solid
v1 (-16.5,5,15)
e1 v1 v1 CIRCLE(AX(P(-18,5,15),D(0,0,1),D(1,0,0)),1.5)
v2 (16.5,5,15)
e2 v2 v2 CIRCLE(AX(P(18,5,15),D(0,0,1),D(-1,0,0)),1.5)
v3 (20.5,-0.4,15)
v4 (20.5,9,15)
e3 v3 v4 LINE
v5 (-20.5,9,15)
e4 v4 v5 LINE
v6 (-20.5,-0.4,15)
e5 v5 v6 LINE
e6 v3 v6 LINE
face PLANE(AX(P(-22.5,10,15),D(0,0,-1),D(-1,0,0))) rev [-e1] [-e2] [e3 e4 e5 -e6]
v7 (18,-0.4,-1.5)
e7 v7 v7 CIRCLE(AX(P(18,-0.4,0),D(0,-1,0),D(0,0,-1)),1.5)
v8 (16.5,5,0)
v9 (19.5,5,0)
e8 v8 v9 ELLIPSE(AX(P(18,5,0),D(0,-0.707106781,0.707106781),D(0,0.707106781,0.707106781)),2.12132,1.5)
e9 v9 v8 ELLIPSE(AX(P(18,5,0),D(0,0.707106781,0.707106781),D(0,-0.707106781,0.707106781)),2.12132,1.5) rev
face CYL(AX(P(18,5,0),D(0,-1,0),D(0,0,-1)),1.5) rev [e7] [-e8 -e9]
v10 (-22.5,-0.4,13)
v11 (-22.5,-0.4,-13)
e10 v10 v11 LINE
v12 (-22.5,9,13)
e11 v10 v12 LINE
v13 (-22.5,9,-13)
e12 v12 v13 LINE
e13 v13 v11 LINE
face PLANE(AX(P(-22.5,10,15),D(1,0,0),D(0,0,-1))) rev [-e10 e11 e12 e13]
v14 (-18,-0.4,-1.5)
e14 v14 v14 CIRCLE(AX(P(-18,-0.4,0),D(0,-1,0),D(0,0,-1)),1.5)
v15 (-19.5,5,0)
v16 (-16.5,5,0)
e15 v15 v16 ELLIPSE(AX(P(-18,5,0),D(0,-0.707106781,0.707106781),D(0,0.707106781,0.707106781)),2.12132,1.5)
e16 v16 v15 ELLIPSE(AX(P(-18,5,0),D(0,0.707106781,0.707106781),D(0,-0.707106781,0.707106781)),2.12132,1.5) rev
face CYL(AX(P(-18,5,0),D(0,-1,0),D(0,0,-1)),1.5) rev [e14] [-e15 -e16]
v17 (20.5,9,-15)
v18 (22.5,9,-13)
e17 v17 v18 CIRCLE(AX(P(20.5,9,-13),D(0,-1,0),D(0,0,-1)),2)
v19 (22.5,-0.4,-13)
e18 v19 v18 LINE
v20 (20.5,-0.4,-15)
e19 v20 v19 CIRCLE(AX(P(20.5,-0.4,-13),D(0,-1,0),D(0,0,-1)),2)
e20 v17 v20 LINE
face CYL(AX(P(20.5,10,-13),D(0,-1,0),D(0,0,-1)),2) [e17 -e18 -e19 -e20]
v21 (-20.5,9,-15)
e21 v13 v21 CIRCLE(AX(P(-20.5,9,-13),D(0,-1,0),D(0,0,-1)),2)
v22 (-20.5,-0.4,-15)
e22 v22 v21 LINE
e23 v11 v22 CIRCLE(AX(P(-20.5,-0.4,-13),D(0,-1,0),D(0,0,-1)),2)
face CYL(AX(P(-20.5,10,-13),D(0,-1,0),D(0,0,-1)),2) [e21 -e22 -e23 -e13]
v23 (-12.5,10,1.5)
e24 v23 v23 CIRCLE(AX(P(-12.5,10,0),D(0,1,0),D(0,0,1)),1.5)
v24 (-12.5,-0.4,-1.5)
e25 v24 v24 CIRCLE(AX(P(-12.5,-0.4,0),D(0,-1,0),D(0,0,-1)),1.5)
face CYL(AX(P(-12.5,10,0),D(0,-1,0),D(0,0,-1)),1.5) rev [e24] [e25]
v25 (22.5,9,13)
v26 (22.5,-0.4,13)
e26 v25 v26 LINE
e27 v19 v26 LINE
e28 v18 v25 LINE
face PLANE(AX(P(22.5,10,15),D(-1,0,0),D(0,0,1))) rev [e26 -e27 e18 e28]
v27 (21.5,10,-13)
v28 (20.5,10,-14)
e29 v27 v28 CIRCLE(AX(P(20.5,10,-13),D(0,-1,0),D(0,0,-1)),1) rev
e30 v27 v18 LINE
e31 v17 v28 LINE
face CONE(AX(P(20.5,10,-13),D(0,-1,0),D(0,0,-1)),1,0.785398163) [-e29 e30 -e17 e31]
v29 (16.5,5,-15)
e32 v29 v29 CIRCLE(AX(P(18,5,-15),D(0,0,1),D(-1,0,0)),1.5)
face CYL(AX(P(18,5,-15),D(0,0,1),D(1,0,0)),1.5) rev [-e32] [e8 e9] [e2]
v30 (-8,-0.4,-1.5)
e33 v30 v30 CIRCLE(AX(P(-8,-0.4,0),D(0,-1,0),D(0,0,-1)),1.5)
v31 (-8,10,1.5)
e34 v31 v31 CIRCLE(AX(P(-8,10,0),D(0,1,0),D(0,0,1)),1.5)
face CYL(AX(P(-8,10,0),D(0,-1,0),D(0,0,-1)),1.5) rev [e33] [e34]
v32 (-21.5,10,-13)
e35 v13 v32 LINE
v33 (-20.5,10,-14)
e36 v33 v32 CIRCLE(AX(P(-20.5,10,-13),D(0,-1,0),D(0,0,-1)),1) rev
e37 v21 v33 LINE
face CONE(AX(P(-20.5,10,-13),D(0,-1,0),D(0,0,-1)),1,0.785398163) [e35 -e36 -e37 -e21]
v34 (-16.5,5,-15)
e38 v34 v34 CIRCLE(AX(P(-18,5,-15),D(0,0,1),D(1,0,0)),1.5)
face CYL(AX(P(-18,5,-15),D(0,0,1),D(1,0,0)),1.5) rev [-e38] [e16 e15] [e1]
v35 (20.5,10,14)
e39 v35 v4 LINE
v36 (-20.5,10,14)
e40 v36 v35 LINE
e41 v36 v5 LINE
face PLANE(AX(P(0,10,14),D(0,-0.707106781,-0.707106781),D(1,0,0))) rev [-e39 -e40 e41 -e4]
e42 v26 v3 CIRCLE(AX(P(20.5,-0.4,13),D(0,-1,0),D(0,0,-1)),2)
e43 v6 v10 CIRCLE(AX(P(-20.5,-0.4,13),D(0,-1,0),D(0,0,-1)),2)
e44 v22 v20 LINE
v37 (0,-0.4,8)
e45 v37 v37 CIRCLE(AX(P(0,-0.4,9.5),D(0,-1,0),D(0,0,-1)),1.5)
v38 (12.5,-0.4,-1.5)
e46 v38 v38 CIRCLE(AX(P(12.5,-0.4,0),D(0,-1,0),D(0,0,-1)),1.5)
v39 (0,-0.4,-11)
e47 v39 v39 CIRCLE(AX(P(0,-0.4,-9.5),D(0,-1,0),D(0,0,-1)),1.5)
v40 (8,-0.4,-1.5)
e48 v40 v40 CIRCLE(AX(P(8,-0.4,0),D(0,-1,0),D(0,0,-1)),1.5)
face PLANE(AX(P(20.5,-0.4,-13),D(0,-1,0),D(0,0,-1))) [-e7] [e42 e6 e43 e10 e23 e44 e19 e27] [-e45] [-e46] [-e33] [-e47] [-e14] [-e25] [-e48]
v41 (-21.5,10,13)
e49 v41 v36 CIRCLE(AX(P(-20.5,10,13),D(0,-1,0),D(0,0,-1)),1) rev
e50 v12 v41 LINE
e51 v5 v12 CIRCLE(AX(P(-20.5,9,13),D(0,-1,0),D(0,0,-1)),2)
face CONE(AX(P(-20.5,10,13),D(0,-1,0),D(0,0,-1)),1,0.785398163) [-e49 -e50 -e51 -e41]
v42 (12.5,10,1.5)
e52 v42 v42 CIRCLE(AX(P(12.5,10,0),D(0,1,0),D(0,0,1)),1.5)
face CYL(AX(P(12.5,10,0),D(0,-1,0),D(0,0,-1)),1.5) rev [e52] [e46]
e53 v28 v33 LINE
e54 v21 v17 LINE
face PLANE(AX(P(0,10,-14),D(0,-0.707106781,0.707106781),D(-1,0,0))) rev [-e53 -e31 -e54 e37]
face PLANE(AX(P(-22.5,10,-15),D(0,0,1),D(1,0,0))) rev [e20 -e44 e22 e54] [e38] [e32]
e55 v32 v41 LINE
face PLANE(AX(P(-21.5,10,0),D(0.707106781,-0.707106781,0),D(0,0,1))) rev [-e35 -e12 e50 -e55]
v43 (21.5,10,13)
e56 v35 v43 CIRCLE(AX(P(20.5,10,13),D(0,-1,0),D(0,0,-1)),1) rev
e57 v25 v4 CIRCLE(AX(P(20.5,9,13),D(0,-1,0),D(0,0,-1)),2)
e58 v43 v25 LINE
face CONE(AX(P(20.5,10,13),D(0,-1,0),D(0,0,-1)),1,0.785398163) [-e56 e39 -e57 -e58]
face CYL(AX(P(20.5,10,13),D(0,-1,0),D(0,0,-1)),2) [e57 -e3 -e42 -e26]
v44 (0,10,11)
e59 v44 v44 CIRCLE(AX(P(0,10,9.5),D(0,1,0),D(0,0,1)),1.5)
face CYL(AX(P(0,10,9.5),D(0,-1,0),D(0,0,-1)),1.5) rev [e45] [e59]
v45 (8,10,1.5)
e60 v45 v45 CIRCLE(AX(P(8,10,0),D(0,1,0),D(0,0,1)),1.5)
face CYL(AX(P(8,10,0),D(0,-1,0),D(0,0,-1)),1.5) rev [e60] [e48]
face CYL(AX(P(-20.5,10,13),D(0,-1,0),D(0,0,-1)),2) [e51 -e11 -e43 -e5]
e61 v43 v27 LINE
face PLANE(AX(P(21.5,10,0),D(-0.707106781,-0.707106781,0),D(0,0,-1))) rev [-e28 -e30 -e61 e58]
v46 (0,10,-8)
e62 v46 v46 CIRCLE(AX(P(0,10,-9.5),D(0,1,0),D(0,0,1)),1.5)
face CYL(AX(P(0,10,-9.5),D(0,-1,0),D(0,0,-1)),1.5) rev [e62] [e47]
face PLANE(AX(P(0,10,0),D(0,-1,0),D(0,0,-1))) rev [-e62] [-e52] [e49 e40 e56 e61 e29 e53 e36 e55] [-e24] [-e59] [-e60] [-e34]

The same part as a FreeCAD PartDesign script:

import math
import FreeCAD as App
import Part
import Sketcher
from FreeCAD import Vector
Q = App.Units.Quantity


def edges_at(feature, points):
    """Names of the edges that pass closest to the given points."""
    edges = feature.Shape.Edges
    near = lambda p: min(range(len(edges)), key=lambda i: edges[i].distToShape(Part.Vertex(*p))[0])
    return sorted({f"Edge{near(p) + 1}" for p in points})


def add_polygon(sketch, points):
    """Adds a closed chain of lines whose ends are joined by coincident constraints."""
    first, n = sketch.GeometryCount, len(points)
    for a, b in zip(points, points[1:] + points[:1]):
        sketch.addGeometry(Part.LineSegment(App.Vector(*a, 0), App.Vector(*b, 0)), False)
    for i in range(n):
        sketch.addConstraint(Sketcher.Constraint("Coincident", first + i, 2, first + (i + 1) % n, 1))

doc = App.newDocument("Part")
body = doc.addObject("PartDesign::Body", "Body")

# Sketch on XZ plane
sketch1 = body.newObject("Sketcher::SketchObject", "Sketch")
sketch1.AttachmentSupport = (doc.getObject("XZ_Plane"), [""])
sketch1.MapMode = "FlatFace"
add_polygon(sketch1, [(-22.5, -15), (-22.5, 15), (22.5, 15), (22.5, -15)])  # lines 0-3
sketch1.addGeometry(Part.Circle(Vector(0, 9.5, 0), Vector(0, 0, 1), 1.5), False)  # 4
sketch1.addGeometry(Part.Circle(Vector(-12.5, 0, 0), Vector(0, 0, 1), 1.5), False)  # 5
sketch1.addGeometry(Part.Circle(Vector(-8, 0, 0), Vector(0, 0, 1), 1.5), False)  # 6
sketch1.addGeometry(Part.Circle(Vector(8, 0, 0), Vector(0, 0, 1), 1.5), False)  # 7
sketch1.addGeometry(Part.Circle(Vector(12.5, 0, 0), Vector(0, 0, 1), 1.5), False)  # 8
sketch1.addGeometry(Part.Circle(Vector(0, -9.5, 0), Vector(0, 0, 1), 1.5), False)  # 9
sketch1.addConstraint([
    Sketcher.Constraint("Vertical", 0),
    Sketcher.Constraint("Horizontal", 1),
    Sketcher.Constraint("Vertical", 2),
    Sketcher.Constraint("Horizontal", 3),
    Sketcher.Constraint("Equal", 4, 5),
    Sketcher.Constraint("Equal", 5, 6),
    Sketcher.Constraint("Equal", 6, 7),
    Sketcher.Constraint("Equal", 7, 8),
    Sketcher.Constraint("Equal", 8, 9),
    Sketcher.Constraint("Symmetric", 6, 3, 7, 3, -1, 1),
    Sketcher.Constraint("Symmetric", 5, 3, 8, 3, -1, 1),
    Sketcher.Constraint("Symmetric", 4, 3, 9, 3, -1, 1),
    Sketcher.Constraint("Symmetric", 0, 2, 2, 2, -1, 1),
    Sketcher.Constraint("PointOnObject", 4, 3, -2),
    Sketcher.Constraint("PointOnObject", 5, 3, -1),
    Sketcher.Constraint("PointOnObject", 6, 3, -1),
    Sketcher.Constraint("Diameter", 4, Q("3 mm")),
    Sketcher.Constraint("DistanceX", 1, 1, 1, 2, Q("45 mm")),
    Sketcher.Constraint("DistanceY", 0, 1, 0, 2, Q("30 mm")),
    Sketcher.Constraint("DistanceX", 6, 3, -1, 1, Q("8 mm")),
    Sketcher.Constraint("DistanceX", 5, 3, 8, 3, Q("25 mm")),
    Sketcher.Constraint("DistanceY", 9, 3, 4, 3, Q("19 mm")),
])
pad1 = body.newObject("PartDesign::Pad", "Pad")
pad1.Profile = sketch1
pad1.Length = 10
pad1.Reversed = True

# Sketch on XY plane
sketch2 = body.newObject("Sketcher::SketchObject", "Sketch001")
sketch2.AttachmentSupport = (doc.getObject("XY_Plane"), [""])
sketch2.MapMode = "FlatFace"
sketch2.AttachmentOffset = App.Placement(Vector(0, 0, 15), App.Rotation())
sketch2.addGeometry([
    Part.Circle(Vector(-18, 5, 0), Vector(0, 0, 1), 1.5),
    Part.Circle(Vector(18, 5, 0), Vector(0, 0, 1), 1.5),
], False)
sketch2.addConstraint([
    Sketcher.Constraint("Equal", 0, 1),
    Sketcher.Constraint("Symmetric", 0, 3, 1, 3, -2),
    Sketcher.Constraint("Diameter", 0, Q("3 mm")),
    Sketcher.Constraint("DistanceX", 0, 3, -1, 1, Q("18 mm")),
    Sketcher.Constraint("DistanceY", -1, 1, 0, 3, Q("5 mm")),
])
pocket1 = body.newObject("PartDesign::Pocket", "Pocket")
pocket1.Profile = sketch2
pocket1.Type = "ThroughAll"
doc.recompute()

fillet = body.newObject("PartDesign::Fillet", "Fillet")
fillet.Base = (pocket1, edges_at(pocket1, [
    (22.5, 5, 15),
    (-22.5, 5, 15),
    (-22.5, 5, -15),
    (22.5, 5, -15),
]))
fillet.Radius = 2
doc.recompute()

chamfer = body.newObject("PartDesign::Chamfer", "Chamfer")
chamfer.Base = (fillet, edges_at(fillet, [
    (22.5, 10, 0),
    (0, 10, 15),
    (0, 10, -15),
    (-22.5, 10, 0),
    (-21.914, 10, 14.414),
    (-21.914, 10, -14.414),
    (21.914, 10, -14.414),
    (21.914, 10, 14.414),
]))
chamfer.Size = 1

# Sketch on XZ plane
sketch3 = body.newObject("Sketcher::SketchObject", "Sketch002")
sketch3.AttachmentSupport = (doc.getObject("XZ_Plane"), [""])
sketch3.MapMode = "FlatFace"
sketch3.addGeometry([
    Part.Circle(Vector(-18, 0, 0), Vector(0, 0, 1), 1.5),
    Part.Circle(Vector(18, 0, 0), Vector(0, 0, 1), 1.5),
], False)
sketch3.addConstraint([
    Sketcher.Constraint("Equal", 0, 1),
    Sketcher.Constraint("Symmetric", 0, 3, 1, 3, -1, 1),
    Sketcher.Constraint("PointOnObject", 0, 3, -1),
    Sketcher.Constraint("Diameter", 0, Q("3 mm")),
    Sketcher.Constraint("DistanceX", 0, 3, -1, 1, Q("18 mm")),
])
pocket2 = body.newObject("PartDesign::Pocket", "Pocket001")
pocket2.Profile = sketch3
pocket2.Length = 5

# Sketch on XZ plane
sketch4 = body.newObject("Sketcher::SketchObject", "Sketch003")
sketch4.AttachmentSupport = (doc.getObject("XZ_Plane"), [""])
sketch4.MapMode = "FlatFace"
sketch4.AttachmentOffset = App.Placement(Vector(0, 0, 0.4), App.Rotation())
sketch4.addGeometry([
    Part.LineSegment(Vector(22.5, -13, 0), Vector(22.5, 13, 0)),  # 0
    Part.ArcOfCircle(Part.Circle(Vector(20.5, 13, 0), Vector(0, 0, 1), 2), math.radians(0), math.radians(90)),  # 1
    Part.LineSegment(Vector(20.5, 15, 0), Vector(-20.5, 15, 0)),  # 2
    Part.ArcOfCircle(Part.Circle(Vector(-20.5, 13, 0), Vector(0, 0, 1), 2), math.radians(90), math.radians(180)),  # 3
    Part.LineSegment(Vector(-22.5, 13, 0), Vector(-22.5, -13, 0)),  # 4
    Part.ArcOfCircle(Part.Circle(Vector(-20.5, -13, 0), Vector(0, 0, 1), 2), math.radians(-180), math.radians(-90)),  # 5
    Part.LineSegment(Vector(-20.5, -15, 0), Vector(20.5, -15, 0)),  # 6
    Part.ArcOfCircle(Part.Circle(Vector(20.5, -13, 0), Vector(0, 0, 1), 2), math.radians(-90), math.radians(0)),  # 7
    Part.Circle(Vector(0, -9.5, 0), Vector(0, 0, 1), 1.5),  # 8
    Part.Circle(Vector(-18, 0, 0), Vector(0, 0, 1), 1.5),  # 9
    Part.Circle(Vector(-12.5, 0, 0), Vector(0, 0, 1), 1.5),  # 10
    Part.Circle(Vector(-8, 0, 0), Vector(0, 0, 1), 1.5),  # 11
    Part.Circle(Vector(8, 0, 0), Vector(0, 0, 1), 1.5),  # 12
    Part.Circle(Vector(12.5, 0, 0), Vector(0, 0, 1), 1.5),  # 13
    Part.Circle(Vector(18, 0, 0), Vector(0, 0, 1), 1.5),  # 14
    Part.Circle(Vector(0, 9.5, 0), Vector(0, 0, 1), 1.5),  # 15
], False)
sketch4.addConstraint([
    Sketcher.Constraint("Tangent", 0, 2, 1, 1),
    Sketcher.Constraint("Tangent", 1, 2, 2, 1),
    Sketcher.Constraint("Tangent", 2, 2, 3, 1),
    Sketcher.Constraint("Tangent", 3, 2, 4, 1),
    Sketcher.Constraint("Tangent", 4, 2, 5, 1),
    Sketcher.Constraint("Tangent", 5, 2, 6, 1),
    Sketcher.Constraint("Tangent", 6, 2, 7, 1),
    Sketcher.Constraint("Tangent", 7, 2, 0, 1),
    Sketcher.Constraint("Vertical", 0),
    Sketcher.Constraint("Horizontal", 2),
    Sketcher.Constraint("Vertical", 4),
    Sketcher.Constraint("Horizontal", 6),
    Sketcher.Constraint("Equal", 1, 3),
    Sketcher.Constraint("Equal", 3, 5),
    Sketcher.Constraint("Equal", 5, 7),
    Sketcher.Constraint("Equal", 8, 9),
    Sketcher.Constraint("Equal", 9, 10),
    Sketcher.Constraint("Equal", 10, 11),
    Sketcher.Constraint("Equal", 11, 12),
    Sketcher.Constraint("Equal", 12, 13),
    Sketcher.Constraint("Equal", 13, 14),
    Sketcher.Constraint("Equal", 14, 15),
    Sketcher.Constraint("Symmetric", 1, 3, 5, 3, -1, 1),
    Sketcher.Constraint("Symmetric", 11, 3, 12, 3, -1, 1),
    Sketcher.Constraint("Symmetric", 10, 3, 13, 3, -1, 1),
    Sketcher.Constraint("Symmetric", 9, 3, 14, 3, -1, 1),
    Sketcher.Constraint("Symmetric", 8, 3, 15, 3, -1, 1),
    Sketcher.Constraint("PointOnObject", 8, 3, -2),
    Sketcher.Constraint("PointOnObject", 9, 3, -1),
    Sketcher.Constraint("PointOnObject", 10, 3, -1),
    Sketcher.Constraint("PointOnObject", 11, 3, -1),
    Sketcher.Constraint("Diameter", 8, Q("3 mm")),
    Sketcher.Constraint("Radius", 1, Q("2 mm")),
    Sketcher.Constraint("DistanceX", 2, 2, 2, 1, Q("41 mm")),
    Sketcher.Constraint("DistanceY", 0, 1, 0, 2, Q("26 mm")),
    Sketcher.Constraint("DistanceX", 9, 3, -1, 1, Q("18 mm")),
    Sketcher.Constraint("DistanceX", 11, 3, -1, 1, Q("8 mm")),
    Sketcher.Constraint("DistanceX", 3, 3, 10, 3, Q("8 mm")),
    Sketcher.Constraint("DistanceY", 8, 3, 15, 3, Q("19 mm")),
])
pad2 = body.newObject("PartDesign::Pad", "Pad001")
pad2.Profile = sketch4
pad2.Length = 0.4
pad2.Reversed = True

doc.recompute()
